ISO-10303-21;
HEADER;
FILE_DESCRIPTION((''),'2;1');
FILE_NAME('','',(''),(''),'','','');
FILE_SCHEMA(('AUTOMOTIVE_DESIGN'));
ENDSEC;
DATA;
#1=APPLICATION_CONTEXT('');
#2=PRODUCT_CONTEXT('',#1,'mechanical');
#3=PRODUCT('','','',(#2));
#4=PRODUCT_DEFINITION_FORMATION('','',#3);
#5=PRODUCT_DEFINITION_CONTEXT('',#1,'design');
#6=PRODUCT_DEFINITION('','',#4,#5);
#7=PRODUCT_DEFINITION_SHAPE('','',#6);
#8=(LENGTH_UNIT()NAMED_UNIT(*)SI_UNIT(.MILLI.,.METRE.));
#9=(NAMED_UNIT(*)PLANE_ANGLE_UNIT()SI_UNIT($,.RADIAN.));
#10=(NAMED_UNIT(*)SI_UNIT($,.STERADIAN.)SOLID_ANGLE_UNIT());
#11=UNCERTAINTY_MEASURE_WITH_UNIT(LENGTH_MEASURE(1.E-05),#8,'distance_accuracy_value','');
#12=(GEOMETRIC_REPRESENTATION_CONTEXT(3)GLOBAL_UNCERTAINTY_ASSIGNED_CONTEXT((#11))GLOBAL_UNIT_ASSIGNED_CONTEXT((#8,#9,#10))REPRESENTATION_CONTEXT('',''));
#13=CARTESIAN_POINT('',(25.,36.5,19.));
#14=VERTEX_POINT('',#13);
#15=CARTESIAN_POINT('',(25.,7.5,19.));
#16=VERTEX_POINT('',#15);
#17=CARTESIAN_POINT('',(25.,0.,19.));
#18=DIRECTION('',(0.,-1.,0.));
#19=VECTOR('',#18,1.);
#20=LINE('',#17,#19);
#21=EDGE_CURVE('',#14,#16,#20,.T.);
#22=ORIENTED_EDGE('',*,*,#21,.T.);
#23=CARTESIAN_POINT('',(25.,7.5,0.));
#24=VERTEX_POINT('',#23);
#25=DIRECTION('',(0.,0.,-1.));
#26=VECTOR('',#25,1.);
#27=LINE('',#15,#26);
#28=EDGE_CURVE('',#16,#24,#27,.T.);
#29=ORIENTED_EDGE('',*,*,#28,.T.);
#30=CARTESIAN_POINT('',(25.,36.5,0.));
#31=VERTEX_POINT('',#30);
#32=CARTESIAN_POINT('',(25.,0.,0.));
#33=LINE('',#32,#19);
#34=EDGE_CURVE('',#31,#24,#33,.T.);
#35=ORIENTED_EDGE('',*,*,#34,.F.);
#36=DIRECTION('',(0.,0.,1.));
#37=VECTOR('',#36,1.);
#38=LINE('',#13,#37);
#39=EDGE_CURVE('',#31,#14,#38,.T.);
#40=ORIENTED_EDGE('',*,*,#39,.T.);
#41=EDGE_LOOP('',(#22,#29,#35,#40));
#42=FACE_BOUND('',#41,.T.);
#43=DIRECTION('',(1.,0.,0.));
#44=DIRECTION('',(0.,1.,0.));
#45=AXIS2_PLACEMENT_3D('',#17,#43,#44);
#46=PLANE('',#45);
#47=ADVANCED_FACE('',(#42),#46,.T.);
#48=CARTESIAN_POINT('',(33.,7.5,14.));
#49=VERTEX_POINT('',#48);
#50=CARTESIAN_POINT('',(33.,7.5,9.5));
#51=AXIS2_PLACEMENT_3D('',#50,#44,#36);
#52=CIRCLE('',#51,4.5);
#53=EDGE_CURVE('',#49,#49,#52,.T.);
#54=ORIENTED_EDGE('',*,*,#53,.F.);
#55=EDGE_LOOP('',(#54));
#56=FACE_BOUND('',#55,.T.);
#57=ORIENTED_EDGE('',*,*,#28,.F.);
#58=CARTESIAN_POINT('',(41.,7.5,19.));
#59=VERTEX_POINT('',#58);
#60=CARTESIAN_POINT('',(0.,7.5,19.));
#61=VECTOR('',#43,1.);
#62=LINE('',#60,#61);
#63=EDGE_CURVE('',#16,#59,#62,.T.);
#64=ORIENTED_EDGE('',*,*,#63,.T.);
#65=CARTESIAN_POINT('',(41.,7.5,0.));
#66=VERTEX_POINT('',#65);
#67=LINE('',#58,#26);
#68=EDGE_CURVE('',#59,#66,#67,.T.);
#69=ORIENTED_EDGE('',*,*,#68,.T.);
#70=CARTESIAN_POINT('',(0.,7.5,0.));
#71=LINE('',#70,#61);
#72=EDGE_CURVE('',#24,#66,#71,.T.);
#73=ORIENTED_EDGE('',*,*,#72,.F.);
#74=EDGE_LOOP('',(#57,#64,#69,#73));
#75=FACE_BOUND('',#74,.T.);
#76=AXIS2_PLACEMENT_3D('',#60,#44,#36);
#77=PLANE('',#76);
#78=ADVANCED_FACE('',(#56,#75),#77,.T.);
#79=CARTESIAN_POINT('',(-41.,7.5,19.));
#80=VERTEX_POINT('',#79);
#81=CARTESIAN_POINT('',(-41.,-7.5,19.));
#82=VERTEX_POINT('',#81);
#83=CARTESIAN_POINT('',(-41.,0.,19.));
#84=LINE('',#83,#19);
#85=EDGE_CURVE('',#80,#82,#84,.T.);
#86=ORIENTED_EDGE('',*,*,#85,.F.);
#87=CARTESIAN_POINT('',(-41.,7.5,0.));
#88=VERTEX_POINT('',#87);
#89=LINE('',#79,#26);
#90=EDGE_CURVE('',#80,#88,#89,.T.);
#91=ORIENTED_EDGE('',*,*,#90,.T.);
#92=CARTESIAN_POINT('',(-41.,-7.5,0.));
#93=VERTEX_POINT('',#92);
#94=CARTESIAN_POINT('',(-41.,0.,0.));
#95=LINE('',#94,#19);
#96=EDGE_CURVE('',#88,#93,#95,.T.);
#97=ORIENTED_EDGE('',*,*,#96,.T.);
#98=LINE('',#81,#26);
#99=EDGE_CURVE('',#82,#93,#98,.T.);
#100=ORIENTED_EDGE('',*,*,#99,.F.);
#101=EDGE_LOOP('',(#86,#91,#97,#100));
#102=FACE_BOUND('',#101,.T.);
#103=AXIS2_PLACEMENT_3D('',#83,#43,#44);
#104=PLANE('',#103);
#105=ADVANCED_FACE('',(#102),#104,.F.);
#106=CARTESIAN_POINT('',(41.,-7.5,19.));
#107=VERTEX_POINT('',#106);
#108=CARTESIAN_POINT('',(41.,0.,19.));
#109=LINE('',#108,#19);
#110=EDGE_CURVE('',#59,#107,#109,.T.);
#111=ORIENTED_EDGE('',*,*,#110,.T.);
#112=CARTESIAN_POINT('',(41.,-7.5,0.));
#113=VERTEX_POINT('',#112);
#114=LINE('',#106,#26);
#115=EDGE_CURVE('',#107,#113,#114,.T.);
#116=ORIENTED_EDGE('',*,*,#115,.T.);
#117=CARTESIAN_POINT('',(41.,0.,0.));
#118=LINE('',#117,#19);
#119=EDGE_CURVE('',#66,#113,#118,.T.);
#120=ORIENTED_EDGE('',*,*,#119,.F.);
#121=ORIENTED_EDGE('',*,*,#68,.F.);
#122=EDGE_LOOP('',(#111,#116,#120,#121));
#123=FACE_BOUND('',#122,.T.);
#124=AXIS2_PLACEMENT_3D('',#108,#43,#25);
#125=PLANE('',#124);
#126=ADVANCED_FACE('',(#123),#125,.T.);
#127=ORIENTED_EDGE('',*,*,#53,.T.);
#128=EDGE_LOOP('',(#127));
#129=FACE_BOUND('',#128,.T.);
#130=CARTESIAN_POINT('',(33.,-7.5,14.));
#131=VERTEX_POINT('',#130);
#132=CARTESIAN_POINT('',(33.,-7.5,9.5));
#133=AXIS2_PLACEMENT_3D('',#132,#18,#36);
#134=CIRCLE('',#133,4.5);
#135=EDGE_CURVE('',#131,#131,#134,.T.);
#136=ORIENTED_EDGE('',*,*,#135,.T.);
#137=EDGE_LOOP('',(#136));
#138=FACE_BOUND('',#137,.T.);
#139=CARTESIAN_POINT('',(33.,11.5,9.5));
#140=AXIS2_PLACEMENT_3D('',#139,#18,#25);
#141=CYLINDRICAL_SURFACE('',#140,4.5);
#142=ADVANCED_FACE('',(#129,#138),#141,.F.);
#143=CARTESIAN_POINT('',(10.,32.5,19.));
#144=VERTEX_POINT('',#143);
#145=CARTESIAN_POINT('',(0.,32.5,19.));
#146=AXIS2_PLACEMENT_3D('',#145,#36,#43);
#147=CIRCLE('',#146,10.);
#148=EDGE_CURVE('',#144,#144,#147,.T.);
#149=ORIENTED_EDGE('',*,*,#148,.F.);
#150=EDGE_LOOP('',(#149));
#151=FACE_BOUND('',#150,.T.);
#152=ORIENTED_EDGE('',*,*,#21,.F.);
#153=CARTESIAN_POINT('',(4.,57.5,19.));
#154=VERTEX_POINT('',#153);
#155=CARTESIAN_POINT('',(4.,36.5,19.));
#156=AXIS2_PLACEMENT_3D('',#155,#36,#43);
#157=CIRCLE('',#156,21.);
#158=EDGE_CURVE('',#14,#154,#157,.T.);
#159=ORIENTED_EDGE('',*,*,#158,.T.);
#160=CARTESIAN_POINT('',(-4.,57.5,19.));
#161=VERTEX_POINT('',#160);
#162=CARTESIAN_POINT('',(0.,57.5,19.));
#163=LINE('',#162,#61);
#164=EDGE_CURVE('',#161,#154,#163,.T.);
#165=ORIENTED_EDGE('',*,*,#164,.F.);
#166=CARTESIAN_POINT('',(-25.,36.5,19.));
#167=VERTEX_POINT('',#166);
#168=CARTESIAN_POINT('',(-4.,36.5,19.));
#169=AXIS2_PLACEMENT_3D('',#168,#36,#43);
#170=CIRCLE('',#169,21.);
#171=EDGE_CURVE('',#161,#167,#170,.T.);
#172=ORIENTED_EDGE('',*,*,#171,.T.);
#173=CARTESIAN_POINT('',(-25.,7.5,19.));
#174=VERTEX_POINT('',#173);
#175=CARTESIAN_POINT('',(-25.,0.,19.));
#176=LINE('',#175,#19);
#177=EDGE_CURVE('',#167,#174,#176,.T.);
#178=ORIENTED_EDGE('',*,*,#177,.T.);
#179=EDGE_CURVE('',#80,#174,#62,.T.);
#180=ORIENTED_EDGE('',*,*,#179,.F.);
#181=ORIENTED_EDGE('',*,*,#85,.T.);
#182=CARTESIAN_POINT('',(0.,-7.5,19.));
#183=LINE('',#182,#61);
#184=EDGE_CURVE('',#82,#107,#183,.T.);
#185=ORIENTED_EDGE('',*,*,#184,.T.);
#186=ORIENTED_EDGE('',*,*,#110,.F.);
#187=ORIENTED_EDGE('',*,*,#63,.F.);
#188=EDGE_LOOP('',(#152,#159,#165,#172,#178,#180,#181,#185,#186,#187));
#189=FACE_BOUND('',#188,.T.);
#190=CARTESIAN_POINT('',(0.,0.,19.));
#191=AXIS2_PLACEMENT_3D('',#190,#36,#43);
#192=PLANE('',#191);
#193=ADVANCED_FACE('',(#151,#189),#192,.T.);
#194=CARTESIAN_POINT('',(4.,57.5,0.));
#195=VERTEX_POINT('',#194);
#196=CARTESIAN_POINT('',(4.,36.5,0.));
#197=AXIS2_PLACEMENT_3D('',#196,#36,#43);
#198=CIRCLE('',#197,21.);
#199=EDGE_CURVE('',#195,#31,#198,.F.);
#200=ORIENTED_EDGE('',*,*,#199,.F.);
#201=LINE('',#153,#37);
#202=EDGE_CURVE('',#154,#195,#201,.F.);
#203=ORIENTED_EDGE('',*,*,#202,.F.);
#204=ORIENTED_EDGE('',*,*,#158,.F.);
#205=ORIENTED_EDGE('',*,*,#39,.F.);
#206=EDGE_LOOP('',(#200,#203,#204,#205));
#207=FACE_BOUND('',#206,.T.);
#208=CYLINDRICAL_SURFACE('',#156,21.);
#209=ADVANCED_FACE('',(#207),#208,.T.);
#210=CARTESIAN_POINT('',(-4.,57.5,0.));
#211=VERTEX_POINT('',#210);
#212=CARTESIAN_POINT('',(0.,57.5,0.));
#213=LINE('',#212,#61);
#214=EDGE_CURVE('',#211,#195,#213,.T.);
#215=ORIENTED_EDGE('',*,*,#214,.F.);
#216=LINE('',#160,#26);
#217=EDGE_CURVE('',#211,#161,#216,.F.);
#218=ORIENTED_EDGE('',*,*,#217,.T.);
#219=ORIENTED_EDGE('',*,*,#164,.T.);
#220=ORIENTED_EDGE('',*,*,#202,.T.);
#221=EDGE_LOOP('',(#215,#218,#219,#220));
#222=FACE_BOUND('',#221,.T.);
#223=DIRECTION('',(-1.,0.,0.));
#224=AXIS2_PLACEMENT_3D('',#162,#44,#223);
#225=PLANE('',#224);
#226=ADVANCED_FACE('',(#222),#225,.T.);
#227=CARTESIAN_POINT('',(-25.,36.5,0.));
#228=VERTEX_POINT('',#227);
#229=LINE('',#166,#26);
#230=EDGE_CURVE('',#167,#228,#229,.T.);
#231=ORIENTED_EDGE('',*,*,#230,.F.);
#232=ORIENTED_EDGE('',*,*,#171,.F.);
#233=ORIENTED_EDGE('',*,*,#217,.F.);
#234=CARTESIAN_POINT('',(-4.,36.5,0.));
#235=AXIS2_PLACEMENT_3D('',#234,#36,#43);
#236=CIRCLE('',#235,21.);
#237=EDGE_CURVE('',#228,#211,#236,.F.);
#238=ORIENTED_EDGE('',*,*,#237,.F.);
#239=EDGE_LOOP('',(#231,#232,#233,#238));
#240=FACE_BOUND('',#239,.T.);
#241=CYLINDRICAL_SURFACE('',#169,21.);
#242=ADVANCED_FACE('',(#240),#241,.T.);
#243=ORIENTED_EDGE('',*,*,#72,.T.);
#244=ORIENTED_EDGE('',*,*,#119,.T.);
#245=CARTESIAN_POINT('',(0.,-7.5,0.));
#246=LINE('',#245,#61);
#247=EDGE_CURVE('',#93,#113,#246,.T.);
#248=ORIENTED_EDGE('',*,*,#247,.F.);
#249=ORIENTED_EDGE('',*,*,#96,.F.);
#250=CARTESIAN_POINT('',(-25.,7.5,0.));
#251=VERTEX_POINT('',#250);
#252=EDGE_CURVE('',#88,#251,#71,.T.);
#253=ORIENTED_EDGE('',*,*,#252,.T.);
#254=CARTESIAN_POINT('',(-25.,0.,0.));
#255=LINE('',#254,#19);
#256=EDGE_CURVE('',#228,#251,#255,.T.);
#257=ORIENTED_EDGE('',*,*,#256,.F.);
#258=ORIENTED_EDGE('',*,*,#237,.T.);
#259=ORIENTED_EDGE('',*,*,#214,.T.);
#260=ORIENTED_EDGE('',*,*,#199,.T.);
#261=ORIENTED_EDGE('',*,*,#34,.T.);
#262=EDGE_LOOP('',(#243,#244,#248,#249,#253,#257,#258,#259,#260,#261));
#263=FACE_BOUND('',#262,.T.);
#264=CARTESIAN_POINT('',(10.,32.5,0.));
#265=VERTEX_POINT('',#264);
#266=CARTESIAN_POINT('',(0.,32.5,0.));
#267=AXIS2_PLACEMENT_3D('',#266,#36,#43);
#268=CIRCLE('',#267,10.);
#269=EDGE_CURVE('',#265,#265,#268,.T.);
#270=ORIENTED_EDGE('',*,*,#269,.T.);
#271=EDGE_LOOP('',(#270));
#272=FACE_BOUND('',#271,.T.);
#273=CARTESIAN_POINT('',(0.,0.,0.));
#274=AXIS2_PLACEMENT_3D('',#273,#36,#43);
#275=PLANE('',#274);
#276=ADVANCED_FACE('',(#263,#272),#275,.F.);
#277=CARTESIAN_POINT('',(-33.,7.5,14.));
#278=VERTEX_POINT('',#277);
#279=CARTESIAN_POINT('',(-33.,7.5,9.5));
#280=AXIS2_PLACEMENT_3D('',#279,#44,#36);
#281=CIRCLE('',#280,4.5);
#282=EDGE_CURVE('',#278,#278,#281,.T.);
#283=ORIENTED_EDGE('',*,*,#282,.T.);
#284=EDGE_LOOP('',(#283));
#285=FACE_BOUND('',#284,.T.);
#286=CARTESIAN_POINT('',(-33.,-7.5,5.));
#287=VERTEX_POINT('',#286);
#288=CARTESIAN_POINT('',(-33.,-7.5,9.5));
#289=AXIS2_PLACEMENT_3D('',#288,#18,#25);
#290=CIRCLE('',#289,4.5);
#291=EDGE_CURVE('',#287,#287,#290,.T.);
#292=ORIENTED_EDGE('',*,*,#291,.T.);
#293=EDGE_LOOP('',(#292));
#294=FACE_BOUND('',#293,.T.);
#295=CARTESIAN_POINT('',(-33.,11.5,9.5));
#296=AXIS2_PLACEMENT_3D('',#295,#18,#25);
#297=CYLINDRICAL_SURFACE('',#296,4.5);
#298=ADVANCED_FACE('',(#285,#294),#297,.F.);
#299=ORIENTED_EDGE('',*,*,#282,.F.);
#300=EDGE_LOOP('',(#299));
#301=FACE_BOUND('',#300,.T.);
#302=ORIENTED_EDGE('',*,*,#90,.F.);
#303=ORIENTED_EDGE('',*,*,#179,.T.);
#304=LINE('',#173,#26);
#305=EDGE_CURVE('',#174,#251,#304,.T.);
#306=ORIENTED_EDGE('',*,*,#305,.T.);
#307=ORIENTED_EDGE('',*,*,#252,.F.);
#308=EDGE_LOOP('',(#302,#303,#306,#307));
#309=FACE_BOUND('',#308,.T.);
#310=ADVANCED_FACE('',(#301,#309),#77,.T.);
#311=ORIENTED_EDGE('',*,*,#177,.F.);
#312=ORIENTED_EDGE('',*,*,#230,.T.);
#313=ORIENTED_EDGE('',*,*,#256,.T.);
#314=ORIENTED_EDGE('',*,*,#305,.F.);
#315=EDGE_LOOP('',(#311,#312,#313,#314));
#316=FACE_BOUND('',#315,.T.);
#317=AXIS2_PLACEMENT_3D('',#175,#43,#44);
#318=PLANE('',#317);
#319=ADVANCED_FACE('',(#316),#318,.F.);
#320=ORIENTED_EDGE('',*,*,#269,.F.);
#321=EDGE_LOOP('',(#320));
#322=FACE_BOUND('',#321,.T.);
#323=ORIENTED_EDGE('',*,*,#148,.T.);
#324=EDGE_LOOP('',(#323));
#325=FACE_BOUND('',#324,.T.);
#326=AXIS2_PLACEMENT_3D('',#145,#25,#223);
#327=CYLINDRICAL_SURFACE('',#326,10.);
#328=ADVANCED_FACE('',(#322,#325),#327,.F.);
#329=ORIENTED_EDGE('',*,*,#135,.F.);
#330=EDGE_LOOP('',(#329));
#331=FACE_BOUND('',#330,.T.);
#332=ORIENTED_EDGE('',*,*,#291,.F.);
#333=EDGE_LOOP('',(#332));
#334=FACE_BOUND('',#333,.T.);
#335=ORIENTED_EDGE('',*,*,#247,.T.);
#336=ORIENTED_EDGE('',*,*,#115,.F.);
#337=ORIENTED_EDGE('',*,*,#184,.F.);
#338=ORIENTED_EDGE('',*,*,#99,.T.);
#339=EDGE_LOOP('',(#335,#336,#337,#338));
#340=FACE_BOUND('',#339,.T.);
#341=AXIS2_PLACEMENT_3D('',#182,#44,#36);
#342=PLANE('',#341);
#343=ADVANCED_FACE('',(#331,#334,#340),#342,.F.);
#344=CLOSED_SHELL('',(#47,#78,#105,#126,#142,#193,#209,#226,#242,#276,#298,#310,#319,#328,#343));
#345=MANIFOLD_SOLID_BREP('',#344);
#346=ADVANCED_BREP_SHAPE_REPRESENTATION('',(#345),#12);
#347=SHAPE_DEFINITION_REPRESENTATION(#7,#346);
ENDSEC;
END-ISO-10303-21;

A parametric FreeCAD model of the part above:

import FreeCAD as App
import Part
import Sketcher
from FreeCAD import Vector
Q = App.Units.Quantity


def edges_at(feature, points):
    """Names of the edges that pass closest to the given points."""
    edges = feature.Shape.Edges
    near = lambda p: min(range(len(edges)), key=lambda i: edges[i].distToShape(Part.Vertex(*p))[0])
    return sorted({f"Edge{near(p) + 1}" for p in points})

doc = App.newDocument("Part")
body = doc.addObject("PartDesign::Body", "Body")

# Sketch on XY plane
sketch1 = body.newObject("Sketcher::SketchObject", "Sketch")
sketch1.AttachmentSupport = (doc.getObject("XY_Plane"), [""])
sketch1.MapMode = "FlatFace"
sketch1.addGeometry(Part.LineSegment(Vector(-25, 58, 0), Vector(-25, 8, 0)), False)
sketch1.addGeometry(Part.LineSegment(Vector(-25, 8, 0), Vector(-41, 8, 0)), False)
sketch1.addGeometry(Part.LineSegment(Vector(-41, 8, 0), Vector(-41, -8, 0)), False)
sketch1.addGeometry(Part.LineSegment(Vector(-41, -8, 0), Vector(41, -8, 0)), False)
sketch1.addGeometry(Part.LineSegment(Vector(41, -8, 0), Vector(41, 8, 0)), False)
sketch1.addGeometry(Part.LineSegment(Vector(41, 8, 0), Vector(25, 8, 0)), False)
sketch1.addGeometry(Part.LineSegment(Vector(25, 8, 0), Vector(25, 58, 0)), False)
sketch1.addGeometry(Part.LineSegment(Vector(25, 58, 0), Vector(-25, 58, 0)), False)
sketch1.addGeometry(Part.Circle(Vector(0, 32, 0), Vector(0, 0, 1), 10), False)
sketch1.addConstraint(Sketcher.Constraint("Coincident", 0, 2, 1, 1))
sketch1.addConstraint(Sketcher.Constraint("Coincident", 1, 2, 2, 1))
sketch1.addConstraint(Sketcher.Constraint("Coincident", 2, 2, 3, 1))
sketch1.addConstraint(Sketcher.Constraint("Coincident", 3, 2, 4, 1))
sketch1.addConstraint(Sketcher.Constraint("Coincident", 4, 2, 5, 1))
sketch1.addConstraint(Sketcher.Constraint("Coincident", 5, 2, 6, 1))
sketch1.addConstraint(Sketcher.Constraint("Coincident", 6, 2, 7, 1))
sketch1.addConstraint(Sketcher.Constraint("Coincident", 7, 2, 0, 1))
sketch1.addConstraint(Sketcher.Constraint("Vertical", 0))
sketch1.addConstraint(Sketcher.Constraint("Horizontal", 1))
sketch1.addConstraint(Sketcher.Constraint("Vertical", 2))
sketch1.addConstraint(Sketcher.Constraint("Horizontal", 3))
sketch1.addConstraint(Sketcher.Constraint("Vertical", 4))
sketch1.addConstraint(Sketcher.Constraint("Horizontal", 5))
sketch1.addConstraint(Sketcher.Constraint("Vertical", 6))
sketch1.addConstraint(Sketcher.Constraint("Horizontal", 7))
sketch1.addConstraint(Sketcher.Constraint("Symmetric", 1, 2, 3, 2, -1, 1))
sketch1.addConstraint(Sketcher.Constraint("Symmetric", 0, 2, 5, 2, -2))
sketch1.addConstraint(Sketcher.Constraint("PointOnObject", 8, 3, -2))
sketch1.addConstraint(Sketcher.Constraint("Equal", 7, 0))
sketch1.addConstraint(Sketcher.Constraint("Diameter", 8, Q("20 mm")))
sketch1.addConstraint(Sketcher.Constraint("DistanceX", 1, 2, 1, 1, Q("16 mm")))
sketch1.addConstraint(Sketcher.Constraint("DistanceX", 3, 1, 3, 2, Q("82 mm")))
sketch1.addConstraint(Sketcher.Constraint("DistanceY", 2, 2, 2, 1, Q("15 mm")))
sketch1.addConstraint(Sketcher.Constraint("DistanceY", 0, 2, 8, 3, Q("25 mm")))
pad1 = body.newObject("PartDesign::Pad", "Pad")
pad1.Profile = sketch1
pad1.Length = 19
doc.recompute()

fillet = body.newObject("PartDesign::Fillet", "Fillet")
fillet.Base = (pad1, edges_at(pad1, [(-25, 57.5, 9.5)]))
fillet.Radius = 21
doc.recompute()

fillet2 = body.newObject("PartDesign::Fillet", "Fillet001")
fillet2.Base = (fillet, edges_at(fillet, [(25, 57.5, 9.5)]))
fillet2.Radius = 21

# Sketch on XZ plane
sketch2 = body.newObject("Sketcher::SketchObject", "Sketch001")
sketch2.AttachmentSupport = (doc.getObject("XZ_Plane"), [""])
sketch2.MapMode = "FlatFace"
sketch2.AttachmentOffset = App.Placement(Vector(0, 0, 7.5), App.Rotation())
sketch2.addGeometry(Part.Circle(Vector(-33, 9.5, 0), Vector(0, 0, 1), 4.5), False)
sketch2.addGeometry(Part.Circle(Vector(33, 9.5, 0), Vector(0, 0, 1), 4.5), False)
sketch2.addConstraint(Sketcher.Constraint("Equal", 0, 1))
sketch2.addConstraint(Sketcher.Constraint("Symmetric", 0, 3, 1, 3, -2))
sketch2.addConstraint(Sketcher.Constraint("Diameter", 0, Q("9 mm")))
sketch2.addConstraint(Sketcher.Constraint("DistanceX", 0, 3, -1, 1, Q("33 mm")))
sketch2.addConstraint(Sketcher.Constraint("DistanceY", -1, 1, 0, 3, Q("9.5 mm")))
pocket1 = body.newObject("PartDesign::Pocket", "Pocket")
pocket1.Profile = sketch2
pocket1.Length = 19

doc.recompute()
